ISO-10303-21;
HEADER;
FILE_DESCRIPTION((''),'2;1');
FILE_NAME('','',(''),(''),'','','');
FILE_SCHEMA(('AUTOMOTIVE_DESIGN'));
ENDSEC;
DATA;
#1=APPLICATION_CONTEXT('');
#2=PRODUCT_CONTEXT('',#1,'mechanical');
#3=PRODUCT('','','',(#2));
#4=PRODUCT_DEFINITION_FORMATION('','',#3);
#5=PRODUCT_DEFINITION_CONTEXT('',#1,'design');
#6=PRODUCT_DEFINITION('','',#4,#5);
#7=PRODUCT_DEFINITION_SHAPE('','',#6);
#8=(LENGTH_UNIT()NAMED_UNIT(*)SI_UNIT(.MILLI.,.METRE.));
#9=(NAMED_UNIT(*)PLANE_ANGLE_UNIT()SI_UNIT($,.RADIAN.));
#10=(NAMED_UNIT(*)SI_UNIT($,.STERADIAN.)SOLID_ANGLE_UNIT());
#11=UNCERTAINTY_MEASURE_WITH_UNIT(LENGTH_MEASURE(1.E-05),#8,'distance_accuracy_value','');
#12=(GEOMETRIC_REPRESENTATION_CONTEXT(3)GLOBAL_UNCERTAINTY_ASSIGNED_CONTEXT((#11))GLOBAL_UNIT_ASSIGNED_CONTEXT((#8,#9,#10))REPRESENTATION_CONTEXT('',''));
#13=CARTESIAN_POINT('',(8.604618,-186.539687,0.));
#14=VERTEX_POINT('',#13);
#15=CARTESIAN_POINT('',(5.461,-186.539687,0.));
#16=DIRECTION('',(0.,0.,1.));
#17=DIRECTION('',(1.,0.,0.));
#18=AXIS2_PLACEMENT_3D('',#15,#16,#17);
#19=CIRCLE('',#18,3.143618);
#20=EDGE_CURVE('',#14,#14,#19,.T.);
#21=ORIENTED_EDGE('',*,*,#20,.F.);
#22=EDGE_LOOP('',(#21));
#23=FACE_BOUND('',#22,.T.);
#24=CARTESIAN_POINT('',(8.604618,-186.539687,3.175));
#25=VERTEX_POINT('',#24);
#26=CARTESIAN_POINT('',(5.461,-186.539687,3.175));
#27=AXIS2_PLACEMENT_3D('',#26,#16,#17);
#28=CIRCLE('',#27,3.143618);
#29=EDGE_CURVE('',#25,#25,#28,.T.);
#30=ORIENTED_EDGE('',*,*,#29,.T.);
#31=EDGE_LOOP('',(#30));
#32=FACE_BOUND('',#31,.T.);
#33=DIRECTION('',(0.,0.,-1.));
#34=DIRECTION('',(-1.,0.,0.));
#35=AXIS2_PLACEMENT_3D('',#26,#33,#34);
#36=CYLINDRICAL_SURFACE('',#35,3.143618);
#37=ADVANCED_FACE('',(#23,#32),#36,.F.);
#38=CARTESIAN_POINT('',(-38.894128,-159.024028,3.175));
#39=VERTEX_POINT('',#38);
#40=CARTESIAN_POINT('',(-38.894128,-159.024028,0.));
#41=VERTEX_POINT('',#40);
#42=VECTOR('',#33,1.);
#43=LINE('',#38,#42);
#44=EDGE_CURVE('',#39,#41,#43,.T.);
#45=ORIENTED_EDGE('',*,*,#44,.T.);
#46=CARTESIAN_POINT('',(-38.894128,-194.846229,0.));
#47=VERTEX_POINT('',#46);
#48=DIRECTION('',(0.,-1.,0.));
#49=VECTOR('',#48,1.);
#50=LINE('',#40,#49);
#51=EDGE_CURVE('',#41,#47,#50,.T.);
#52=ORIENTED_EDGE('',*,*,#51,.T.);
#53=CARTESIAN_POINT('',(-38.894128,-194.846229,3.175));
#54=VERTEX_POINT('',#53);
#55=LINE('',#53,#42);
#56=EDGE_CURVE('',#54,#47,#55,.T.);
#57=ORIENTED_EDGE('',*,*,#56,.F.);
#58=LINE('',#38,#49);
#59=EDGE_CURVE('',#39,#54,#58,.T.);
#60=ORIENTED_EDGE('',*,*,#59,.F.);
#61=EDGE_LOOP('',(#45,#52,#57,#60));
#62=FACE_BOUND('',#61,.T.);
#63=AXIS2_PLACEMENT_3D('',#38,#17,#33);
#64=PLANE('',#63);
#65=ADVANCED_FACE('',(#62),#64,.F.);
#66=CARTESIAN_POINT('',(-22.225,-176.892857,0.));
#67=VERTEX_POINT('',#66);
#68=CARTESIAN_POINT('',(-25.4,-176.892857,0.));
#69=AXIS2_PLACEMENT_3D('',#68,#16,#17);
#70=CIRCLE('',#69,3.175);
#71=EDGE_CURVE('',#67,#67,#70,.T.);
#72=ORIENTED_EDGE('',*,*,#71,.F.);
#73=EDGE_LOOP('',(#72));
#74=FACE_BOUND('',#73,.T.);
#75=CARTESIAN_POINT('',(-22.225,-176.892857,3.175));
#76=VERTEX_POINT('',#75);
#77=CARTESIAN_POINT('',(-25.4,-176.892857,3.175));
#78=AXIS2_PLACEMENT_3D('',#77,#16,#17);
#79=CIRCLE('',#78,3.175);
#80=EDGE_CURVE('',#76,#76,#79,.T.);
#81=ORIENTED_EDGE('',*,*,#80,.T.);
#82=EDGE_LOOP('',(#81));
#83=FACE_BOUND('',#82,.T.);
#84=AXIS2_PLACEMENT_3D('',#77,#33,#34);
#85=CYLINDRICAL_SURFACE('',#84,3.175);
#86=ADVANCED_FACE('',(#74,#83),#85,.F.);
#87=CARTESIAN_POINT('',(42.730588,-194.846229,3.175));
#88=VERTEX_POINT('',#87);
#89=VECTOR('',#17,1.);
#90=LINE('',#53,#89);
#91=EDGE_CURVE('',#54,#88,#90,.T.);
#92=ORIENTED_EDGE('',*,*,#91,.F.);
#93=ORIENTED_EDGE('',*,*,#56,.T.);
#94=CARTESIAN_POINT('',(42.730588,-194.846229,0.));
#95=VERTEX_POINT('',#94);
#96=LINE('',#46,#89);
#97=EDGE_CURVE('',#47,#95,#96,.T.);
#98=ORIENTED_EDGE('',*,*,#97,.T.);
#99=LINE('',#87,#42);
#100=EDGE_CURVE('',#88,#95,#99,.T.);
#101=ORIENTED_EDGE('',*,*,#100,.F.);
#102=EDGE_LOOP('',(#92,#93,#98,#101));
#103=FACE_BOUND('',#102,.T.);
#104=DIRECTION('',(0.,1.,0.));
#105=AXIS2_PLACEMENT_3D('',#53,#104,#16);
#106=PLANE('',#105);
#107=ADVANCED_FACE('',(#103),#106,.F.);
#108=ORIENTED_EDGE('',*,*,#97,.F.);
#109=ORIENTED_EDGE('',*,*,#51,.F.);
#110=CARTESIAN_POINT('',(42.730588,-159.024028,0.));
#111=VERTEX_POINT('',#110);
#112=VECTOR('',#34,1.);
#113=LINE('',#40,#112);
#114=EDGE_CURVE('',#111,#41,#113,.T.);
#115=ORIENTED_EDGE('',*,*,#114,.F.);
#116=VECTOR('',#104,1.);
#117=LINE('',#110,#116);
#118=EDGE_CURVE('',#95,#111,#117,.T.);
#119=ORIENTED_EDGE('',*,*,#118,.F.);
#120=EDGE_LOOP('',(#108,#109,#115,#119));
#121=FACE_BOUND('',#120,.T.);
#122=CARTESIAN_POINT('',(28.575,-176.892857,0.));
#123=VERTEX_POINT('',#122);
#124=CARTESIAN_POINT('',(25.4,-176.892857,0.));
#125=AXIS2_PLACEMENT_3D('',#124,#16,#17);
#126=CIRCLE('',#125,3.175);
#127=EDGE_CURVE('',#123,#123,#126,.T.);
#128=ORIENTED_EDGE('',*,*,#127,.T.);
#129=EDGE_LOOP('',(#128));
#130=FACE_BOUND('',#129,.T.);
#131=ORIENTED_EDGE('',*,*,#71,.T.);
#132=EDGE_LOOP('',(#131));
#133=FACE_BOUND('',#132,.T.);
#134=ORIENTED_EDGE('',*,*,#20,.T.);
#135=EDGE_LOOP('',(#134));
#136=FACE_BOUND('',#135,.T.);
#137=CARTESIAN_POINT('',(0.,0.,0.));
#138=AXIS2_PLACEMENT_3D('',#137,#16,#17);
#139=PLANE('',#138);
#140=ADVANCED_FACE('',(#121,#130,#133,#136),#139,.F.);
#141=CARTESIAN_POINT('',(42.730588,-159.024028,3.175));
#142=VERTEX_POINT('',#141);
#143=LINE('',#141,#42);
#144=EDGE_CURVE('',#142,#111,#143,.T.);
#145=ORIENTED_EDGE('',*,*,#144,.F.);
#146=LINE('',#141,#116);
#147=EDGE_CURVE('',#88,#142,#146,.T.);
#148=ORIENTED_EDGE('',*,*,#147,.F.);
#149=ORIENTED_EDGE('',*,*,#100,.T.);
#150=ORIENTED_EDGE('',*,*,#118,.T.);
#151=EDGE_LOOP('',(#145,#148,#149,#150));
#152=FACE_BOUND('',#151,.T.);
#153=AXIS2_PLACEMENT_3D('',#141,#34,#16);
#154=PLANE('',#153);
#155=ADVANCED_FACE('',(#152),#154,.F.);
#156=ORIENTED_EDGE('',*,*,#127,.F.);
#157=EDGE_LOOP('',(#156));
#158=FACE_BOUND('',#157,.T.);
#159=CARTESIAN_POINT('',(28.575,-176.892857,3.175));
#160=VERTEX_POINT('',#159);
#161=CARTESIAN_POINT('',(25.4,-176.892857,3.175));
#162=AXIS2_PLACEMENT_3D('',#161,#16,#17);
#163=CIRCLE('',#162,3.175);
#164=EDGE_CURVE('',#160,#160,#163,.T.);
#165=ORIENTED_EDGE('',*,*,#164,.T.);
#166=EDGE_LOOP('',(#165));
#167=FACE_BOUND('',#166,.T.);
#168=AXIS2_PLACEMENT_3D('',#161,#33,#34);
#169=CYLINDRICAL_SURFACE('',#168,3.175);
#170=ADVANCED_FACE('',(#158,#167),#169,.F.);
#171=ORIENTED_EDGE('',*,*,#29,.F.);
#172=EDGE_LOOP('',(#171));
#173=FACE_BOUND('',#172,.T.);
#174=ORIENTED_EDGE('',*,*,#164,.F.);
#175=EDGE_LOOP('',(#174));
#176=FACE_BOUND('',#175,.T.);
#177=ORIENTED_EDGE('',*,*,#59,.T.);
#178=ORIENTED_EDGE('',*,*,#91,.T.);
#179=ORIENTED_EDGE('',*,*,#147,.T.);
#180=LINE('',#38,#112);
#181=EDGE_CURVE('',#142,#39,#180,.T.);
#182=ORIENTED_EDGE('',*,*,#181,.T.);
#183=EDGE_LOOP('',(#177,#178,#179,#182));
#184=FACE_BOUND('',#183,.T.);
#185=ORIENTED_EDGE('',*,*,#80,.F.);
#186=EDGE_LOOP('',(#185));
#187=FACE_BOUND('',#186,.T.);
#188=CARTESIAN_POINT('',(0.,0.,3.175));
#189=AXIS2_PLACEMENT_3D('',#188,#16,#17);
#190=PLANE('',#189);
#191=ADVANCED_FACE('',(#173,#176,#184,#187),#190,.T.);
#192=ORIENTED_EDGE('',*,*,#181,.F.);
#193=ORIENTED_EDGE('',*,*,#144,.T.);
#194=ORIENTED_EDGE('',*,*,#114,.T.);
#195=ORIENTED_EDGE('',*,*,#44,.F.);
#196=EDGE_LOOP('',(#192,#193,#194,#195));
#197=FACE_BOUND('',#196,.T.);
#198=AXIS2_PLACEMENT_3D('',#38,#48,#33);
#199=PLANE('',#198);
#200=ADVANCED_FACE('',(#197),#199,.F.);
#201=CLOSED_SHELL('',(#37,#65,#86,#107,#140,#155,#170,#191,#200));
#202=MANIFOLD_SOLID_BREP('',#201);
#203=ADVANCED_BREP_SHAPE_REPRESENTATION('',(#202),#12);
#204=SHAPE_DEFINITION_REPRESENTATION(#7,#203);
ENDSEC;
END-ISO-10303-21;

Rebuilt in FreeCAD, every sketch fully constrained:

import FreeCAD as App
import Part
import Sketcher

V = App.Vector
Q = App.Units.Quantity

doc = App.newDocument("Part")
body = doc.addObject("PartDesign::Body", "Body")

sketch1 = body.newObject("Sketcher::SketchObject", "Sketch")
sketch1.AttachmentSupport = (doc.getObject("XY_Plane"), [""])
sketch1.MapMode = "FlatFace"
sketch1.addGeometry([
    Part.LineSegment(V(-38.9, -159, 0), V(-38.9, -194.8, 0)),
    Part.LineSegment(V(-38.9, -194.8, 0), V(42.7, -194.8, 0)),
    Part.LineSegment(V(42.7, -194.8, 0), V(42.7, -159, 0)),
    Part.LineSegment(V(42.7, -159, 0), V(-38.9, -159, 0)),
    Part.Circle(V(5.5, -186.5, 0), V(0, 0, 1), 3.1),
    Part.Circle(V(-25.4, -176.9, 0), V(0, 0, 1), 3.2),
    Part.Circle(V(25.4, -176.9, 0), V(0, 0, 1), 3.2),
], False)
sketch1.addConstraint([
    Sketcher.Constraint("Coincident", 0, 2, 1, 1),
    Sketcher.Constraint("Coincident", 1, 2, 2, 1),
    Sketcher.Constraint("Coincident", 2, 2, 3, 1),
    Sketcher.Constraint("Coincident", 3, 2, 0, 1),
    Sketcher.Constraint("Vertical", 0),
    Sketcher.Constraint("Horizontal", 1),
    Sketcher.Constraint("Vertical", 2),
    Sketcher.Constraint("Horizontal", 3),
    Sketcher.Constraint("Equal", 5, 6),
    Sketcher.Constraint("Symmetric", 5, 3, 6, 3, -2),
    Sketcher.Constraint("Diameter", 5, Q("0.25 in")),
    Sketcher.Constraint("DistanceX", 5, 3, -1, 1, Q("1 in")),
    Sketcher.Constraint("DistanceX", -1, 1, 4, 3, Q("0.215 in")),
    Sketcher.Constraint("Diameter", 4, 6.287236),
    Sketcher.Constraint("DistanceY", 0, 2, 0, 1, 35.822201),
    Sketcher.Constraint("DistanceX", 1, 1, 1, 2, 81.624716),
    Sketcher.Constraint("DistanceY", 0, 2, -1, 1, 194.846229),
    Sketcher.Constraint("DistanceX", -1, 1, 1, 2, 42.730588),
    Sketcher.Constraint("DistanceY", 4, 3, 5, 3, 9.64683),
    Sketcher.Constraint("DistanceY", 0, 2, 5, 3, 17.953372),
])
pad1 = body.newObject("PartDesign::Pad", "Pad")
pad1.Profile = sketch1
pad1.Length = Q("0.125 in")

doc.recompute()
